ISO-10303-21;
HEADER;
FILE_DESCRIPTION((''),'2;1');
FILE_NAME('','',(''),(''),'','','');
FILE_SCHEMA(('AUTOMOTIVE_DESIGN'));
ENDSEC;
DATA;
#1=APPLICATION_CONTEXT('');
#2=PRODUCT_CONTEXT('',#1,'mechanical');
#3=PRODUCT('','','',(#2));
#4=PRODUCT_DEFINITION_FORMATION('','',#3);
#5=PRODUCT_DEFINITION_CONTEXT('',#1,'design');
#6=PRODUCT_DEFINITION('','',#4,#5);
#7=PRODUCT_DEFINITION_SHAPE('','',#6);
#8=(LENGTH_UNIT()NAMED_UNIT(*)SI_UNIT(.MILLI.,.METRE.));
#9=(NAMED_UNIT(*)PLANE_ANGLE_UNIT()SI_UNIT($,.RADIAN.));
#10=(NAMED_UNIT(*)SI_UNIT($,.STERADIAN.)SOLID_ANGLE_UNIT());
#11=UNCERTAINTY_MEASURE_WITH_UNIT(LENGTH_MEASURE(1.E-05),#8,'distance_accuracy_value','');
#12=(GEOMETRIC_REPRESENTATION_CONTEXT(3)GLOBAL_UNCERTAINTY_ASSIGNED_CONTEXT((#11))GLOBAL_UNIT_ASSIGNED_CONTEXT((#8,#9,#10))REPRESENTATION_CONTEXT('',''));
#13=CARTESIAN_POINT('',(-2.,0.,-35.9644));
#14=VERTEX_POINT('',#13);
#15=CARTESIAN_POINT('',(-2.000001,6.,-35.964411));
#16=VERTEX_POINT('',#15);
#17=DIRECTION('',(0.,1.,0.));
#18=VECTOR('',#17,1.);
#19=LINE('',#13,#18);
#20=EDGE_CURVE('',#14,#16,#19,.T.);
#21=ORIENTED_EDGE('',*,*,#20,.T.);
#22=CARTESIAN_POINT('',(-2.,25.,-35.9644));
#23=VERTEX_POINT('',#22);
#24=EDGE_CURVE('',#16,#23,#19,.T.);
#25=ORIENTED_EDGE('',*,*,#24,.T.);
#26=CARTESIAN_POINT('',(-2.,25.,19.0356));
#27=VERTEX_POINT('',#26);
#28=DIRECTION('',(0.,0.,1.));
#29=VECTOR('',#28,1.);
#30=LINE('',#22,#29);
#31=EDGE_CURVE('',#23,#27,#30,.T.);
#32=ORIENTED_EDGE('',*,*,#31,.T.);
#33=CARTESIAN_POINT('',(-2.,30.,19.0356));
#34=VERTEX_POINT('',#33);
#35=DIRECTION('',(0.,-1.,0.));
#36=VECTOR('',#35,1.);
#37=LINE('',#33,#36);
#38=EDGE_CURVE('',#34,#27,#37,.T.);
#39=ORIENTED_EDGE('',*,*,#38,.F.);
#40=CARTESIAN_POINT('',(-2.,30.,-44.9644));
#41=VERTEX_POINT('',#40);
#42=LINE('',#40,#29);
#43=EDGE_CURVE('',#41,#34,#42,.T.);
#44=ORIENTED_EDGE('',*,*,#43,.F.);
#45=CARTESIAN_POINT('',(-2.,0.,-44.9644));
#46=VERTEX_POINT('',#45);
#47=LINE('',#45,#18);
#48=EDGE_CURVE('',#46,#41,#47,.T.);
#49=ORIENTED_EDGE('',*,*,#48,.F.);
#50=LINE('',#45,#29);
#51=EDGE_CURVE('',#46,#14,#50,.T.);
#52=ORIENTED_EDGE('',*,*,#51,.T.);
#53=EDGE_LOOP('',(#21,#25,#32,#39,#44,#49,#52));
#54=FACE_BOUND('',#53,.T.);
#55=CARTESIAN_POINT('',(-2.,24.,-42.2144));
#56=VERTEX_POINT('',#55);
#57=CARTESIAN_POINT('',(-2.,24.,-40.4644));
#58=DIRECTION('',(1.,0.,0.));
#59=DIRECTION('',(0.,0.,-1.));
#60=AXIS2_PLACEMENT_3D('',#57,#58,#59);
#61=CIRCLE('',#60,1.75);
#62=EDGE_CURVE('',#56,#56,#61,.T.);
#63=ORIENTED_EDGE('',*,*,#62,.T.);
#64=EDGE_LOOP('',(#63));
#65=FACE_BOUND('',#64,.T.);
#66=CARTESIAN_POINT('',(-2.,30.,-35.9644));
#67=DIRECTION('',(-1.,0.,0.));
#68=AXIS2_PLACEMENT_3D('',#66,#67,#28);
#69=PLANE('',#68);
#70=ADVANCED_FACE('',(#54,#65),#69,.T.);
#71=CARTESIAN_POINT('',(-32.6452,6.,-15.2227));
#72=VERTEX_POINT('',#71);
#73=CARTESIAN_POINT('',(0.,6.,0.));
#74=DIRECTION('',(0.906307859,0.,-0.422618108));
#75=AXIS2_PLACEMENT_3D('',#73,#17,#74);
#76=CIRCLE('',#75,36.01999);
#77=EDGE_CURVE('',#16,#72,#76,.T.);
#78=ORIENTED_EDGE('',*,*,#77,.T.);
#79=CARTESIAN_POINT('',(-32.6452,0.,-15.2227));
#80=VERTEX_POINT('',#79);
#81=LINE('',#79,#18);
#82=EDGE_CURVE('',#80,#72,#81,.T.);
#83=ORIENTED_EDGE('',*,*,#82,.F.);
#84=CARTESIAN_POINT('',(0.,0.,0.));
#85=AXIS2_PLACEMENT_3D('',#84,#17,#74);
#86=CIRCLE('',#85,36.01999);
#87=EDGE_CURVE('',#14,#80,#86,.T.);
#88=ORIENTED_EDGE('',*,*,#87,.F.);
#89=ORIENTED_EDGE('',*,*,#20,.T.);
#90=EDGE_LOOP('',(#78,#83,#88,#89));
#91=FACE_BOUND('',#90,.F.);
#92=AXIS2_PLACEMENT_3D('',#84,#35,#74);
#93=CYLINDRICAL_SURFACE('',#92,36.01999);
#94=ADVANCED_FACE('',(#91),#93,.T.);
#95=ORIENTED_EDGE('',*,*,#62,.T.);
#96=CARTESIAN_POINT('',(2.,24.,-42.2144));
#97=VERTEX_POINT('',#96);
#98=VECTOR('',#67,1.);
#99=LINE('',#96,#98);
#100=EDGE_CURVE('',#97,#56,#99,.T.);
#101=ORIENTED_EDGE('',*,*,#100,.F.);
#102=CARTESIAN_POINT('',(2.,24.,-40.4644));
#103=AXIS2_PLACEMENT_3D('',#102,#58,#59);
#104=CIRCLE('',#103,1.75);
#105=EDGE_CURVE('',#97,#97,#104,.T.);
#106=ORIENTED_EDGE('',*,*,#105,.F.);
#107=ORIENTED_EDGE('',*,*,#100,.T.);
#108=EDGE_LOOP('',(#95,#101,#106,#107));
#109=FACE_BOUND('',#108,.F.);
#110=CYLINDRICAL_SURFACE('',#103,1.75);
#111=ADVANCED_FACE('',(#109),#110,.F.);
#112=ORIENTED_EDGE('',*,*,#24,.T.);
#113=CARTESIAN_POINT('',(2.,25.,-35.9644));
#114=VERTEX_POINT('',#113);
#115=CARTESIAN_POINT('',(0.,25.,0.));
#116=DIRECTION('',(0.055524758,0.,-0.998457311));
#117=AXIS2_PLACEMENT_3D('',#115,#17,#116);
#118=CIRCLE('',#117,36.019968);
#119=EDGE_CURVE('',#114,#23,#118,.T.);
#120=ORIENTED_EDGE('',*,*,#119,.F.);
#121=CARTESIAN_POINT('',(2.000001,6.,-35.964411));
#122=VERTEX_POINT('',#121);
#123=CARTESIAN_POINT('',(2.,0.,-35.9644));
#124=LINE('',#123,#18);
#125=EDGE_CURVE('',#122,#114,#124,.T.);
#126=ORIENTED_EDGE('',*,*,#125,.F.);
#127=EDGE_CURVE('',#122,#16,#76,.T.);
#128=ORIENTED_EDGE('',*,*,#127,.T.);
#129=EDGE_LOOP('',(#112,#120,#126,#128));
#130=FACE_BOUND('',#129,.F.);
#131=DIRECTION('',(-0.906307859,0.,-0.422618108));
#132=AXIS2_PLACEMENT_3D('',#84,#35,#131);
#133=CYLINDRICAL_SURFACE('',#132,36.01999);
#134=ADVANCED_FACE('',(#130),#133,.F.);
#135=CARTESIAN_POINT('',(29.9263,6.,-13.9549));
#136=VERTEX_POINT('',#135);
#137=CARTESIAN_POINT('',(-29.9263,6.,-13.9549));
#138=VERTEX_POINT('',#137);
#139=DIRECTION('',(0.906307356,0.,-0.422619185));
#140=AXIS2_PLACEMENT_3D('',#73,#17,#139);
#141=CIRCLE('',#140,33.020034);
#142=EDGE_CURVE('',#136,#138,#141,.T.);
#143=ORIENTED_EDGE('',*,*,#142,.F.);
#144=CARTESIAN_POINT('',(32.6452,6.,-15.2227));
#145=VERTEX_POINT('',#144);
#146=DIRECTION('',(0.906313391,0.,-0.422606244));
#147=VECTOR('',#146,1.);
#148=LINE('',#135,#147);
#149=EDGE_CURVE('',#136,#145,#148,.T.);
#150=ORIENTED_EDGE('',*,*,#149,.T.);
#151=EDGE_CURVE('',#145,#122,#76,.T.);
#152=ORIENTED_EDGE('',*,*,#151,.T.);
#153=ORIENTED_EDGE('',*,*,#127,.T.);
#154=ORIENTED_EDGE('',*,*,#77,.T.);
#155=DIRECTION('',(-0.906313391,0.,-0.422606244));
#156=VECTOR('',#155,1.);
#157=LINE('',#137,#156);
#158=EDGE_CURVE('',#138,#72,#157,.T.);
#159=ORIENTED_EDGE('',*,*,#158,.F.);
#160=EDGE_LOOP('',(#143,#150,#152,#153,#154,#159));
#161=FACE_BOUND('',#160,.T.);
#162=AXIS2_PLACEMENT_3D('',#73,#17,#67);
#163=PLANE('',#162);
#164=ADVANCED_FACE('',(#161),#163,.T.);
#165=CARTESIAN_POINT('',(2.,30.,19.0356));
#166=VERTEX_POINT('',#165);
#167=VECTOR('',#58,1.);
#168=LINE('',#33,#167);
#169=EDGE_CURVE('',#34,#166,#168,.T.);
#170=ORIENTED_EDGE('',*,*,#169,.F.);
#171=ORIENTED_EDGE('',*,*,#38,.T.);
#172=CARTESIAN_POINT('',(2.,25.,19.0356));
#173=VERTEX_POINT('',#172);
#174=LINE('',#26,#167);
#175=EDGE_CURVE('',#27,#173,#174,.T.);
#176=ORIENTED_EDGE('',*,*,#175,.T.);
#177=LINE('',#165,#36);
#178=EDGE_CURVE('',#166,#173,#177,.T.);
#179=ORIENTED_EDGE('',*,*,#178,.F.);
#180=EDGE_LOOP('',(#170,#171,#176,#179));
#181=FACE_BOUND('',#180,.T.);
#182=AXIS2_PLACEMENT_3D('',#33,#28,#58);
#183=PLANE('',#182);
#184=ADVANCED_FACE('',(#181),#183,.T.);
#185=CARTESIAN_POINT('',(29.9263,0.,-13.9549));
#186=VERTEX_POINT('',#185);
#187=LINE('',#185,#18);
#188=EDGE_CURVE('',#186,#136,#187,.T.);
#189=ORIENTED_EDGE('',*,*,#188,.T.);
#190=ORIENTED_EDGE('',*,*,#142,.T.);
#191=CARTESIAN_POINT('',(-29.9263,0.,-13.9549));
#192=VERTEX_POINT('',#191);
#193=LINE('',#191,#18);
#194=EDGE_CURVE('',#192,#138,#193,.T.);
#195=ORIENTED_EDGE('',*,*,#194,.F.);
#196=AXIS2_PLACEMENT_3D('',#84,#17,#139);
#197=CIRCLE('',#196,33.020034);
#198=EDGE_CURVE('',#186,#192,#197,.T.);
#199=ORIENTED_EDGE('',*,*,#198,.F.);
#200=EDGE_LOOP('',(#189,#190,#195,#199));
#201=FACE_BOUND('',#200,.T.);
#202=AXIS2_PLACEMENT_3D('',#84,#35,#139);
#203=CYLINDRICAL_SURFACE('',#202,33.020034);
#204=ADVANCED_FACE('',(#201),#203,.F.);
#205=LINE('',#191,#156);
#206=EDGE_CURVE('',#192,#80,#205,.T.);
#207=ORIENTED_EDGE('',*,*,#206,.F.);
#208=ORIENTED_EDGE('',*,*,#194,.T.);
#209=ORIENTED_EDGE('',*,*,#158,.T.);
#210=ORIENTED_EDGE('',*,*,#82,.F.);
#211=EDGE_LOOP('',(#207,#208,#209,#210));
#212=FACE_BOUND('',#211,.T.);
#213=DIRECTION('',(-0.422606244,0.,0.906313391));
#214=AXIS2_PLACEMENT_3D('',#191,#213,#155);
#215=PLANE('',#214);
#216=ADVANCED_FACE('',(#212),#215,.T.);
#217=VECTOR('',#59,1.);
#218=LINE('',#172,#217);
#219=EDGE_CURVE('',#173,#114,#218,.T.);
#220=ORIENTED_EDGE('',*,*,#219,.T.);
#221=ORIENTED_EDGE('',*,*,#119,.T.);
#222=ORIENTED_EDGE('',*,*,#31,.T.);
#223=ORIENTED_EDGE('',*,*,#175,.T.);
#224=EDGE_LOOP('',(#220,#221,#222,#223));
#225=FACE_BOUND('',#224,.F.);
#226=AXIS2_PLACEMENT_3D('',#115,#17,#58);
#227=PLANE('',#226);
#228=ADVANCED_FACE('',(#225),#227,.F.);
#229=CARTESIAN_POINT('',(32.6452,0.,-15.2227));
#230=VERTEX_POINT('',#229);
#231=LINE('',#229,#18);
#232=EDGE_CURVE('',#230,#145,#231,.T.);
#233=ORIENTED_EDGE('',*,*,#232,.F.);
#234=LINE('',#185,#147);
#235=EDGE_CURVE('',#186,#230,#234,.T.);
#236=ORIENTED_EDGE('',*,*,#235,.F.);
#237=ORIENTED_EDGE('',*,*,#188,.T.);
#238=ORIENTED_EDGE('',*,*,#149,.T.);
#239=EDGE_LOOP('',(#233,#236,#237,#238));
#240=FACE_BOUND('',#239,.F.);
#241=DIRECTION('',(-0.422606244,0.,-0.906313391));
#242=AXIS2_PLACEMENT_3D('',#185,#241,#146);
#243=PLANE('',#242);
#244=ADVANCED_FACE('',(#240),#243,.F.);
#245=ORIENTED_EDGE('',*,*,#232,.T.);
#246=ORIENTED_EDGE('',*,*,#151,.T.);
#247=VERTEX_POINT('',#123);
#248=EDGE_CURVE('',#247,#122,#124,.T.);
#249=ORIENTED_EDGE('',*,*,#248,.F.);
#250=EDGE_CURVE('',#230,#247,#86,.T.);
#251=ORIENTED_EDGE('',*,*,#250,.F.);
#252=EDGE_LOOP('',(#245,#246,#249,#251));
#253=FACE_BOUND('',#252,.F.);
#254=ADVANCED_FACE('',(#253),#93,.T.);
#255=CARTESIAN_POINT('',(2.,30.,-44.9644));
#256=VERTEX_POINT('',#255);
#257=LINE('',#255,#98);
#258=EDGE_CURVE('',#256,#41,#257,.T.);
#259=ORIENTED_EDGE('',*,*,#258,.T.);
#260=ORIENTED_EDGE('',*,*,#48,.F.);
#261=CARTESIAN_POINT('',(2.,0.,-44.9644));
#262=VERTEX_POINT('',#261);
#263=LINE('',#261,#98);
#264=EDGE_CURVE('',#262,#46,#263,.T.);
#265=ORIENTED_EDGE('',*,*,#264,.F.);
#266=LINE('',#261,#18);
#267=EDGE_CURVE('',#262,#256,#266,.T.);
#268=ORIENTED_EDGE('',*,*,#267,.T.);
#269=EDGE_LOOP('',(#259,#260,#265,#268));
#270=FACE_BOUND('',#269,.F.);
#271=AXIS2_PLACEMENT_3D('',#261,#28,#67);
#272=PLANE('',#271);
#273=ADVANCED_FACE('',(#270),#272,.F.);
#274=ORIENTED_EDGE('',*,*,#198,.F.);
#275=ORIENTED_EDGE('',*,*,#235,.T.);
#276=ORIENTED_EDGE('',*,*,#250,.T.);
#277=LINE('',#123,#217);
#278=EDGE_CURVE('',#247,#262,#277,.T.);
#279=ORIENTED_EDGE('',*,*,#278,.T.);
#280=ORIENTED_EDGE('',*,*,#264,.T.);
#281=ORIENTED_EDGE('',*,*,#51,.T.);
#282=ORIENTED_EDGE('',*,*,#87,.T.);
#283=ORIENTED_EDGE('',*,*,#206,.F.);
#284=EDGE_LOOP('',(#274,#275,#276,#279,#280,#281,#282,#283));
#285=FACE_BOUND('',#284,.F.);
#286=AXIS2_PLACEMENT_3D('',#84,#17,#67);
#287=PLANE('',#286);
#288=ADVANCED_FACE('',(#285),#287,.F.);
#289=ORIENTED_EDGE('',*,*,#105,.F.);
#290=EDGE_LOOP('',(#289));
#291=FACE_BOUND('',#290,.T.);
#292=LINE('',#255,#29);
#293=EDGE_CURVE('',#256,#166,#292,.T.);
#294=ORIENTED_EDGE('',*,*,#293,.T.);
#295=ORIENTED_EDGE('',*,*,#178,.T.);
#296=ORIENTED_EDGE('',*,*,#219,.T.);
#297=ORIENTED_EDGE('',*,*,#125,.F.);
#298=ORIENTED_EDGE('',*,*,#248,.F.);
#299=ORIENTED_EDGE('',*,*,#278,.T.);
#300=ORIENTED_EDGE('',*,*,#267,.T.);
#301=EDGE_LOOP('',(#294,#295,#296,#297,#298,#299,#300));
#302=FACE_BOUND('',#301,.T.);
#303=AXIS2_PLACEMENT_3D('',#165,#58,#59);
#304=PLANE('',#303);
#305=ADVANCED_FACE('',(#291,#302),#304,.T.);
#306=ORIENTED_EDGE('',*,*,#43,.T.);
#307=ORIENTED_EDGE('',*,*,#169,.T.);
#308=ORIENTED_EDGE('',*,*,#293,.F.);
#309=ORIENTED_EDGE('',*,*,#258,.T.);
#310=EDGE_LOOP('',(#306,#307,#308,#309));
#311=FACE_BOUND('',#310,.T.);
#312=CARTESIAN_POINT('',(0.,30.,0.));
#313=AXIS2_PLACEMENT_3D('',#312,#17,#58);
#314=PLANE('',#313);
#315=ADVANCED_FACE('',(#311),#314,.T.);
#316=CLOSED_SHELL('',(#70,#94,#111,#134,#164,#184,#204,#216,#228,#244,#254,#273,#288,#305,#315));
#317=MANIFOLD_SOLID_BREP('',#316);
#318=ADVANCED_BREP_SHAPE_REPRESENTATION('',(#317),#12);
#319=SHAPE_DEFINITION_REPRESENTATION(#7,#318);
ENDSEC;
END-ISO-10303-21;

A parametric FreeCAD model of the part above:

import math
import FreeCAD as App
import Part
import Sketcher
Q = App.Units.Quantity

doc = App.newDocument("Part")
body = doc.addObject("PartDesign::Body", "Body")

sketch1 = body.newObject("Sketcher::SketchObject", "Sketch")
sketch1.AttachmentSupport = (doc.getObject("XZ_Plane"), [""])
sketch1.MapMode = "FlatFace"
sketch1.addGeometry(Part.ArcOfCircle(Part.Circle(App.Vector(0, 0, 0), App.Vector(0, 0, 1), 33), math.radians(-155), math.radians(-25)), False)
sketch1.addGeometry(Part.LineSegment(App.Vector(29.9, -14, 0), App.Vector(32.6, -15.2, 0)), False)
sketch1.addGeometry(Part.ArcOfCircle(Part.Circle(App.Vector(0, 0, 0), App.Vector(0, 0, 1), 36), math.radians(-155), math.radians(-25)), False)
sketch1.addGeometry(Part.LineSegment(App.Vector(-32.6, -15.2, 0), App.Vector(-29.9, -14, 0)), False)
sketch1.addConstraint(Sketcher.Constraint("Coincident", 0, 2, 1, 1))
sketch1.addConstraint(Sketcher.Constraint("Coincident", 1, 2, 2, 2))
sketch1.addConstraint(Sketcher.Constraint("Coincident", 2, 1, 3, 1))
sketch1.addConstraint(Sketcher.Constraint("Coincident", 3, 2, 0, 1))
sketch1.addConstraint(Sketcher.Constraint("Coincident", 0, 3, -1, 1))
sketch1.addConstraint(Sketcher.Constraint("Coincident", 2, 3, -1, 1))
sketch1.addConstraint(Sketcher.Constraint("Horizontal", 1, 2, 2, 1))
sketch1.addConstraint(Sketcher.Constraint("Horizontal", 0, 2, 3, 2))
sketch1.addConstraint(Sketcher.Constraint("Radius", 0, Q("33.02 mm")))
sketch1.addConstraint(Sketcher.Constraint("Distance", 1, Q("3 mm")))
sketch1.addConstraint(Sketcher.Constraint("Angle", 1, Q("-24.9992 deg")))
sketch1.addConstraint(Sketcher.Constraint("DistanceY", 0, 2, -1, 1, Q("13.955 mm")))
pad1 = body.newObject("PartDesign::Pad", "Pad")
pad1.Profile = sketch1
pad1.Length = 6
pad1.Reversed = True

sketch2 = body.newObject("Sketcher::SketchObject", "Sketch001")
sketch2.AttachmentSupport = (doc.getObject("XZ_Plane"), [""])
sketch2.MapMode = "FlatFace"
sketch2.addGeometry(Part.ArcOfCircle(Part.Circle(App.Vector(0, 0, 0), App.Vector(0, 0, 1), 36), math.radians(-93.18), math.radians(-86.82)), False)
sketch2.addGeometry(Part.LineSegment(App.Vector(-2, -36, 0), App.Vector(-2, -45, 0)), False)
sketch2.addGeometry(Part.LineSegment(App.Vector(-2, -45, 0), App.Vector(2, -45, 0)), False)
sketch2.addGeometry(Part.LineSegment(App.Vector(2, -45, 0), App.Vector(2, -36, 0)), False)
sketch2.addConstraint(Sketcher.Constraint("Coincident", 0, 1, 1, 1))
sketch2.addConstraint(Sketcher.Constraint("Coincident", 1, 2, 2, 1))
sketch2.addConstraint(Sketcher.Constraint("Coincident", 2, 2, 3, 1))
sketch2.addConstraint(Sketcher.Constraint("Coincident", 3, 2, 0, 2))
sketch2.addConstraint(Sketcher.Constraint("Vertical", 1))
sketch2.addConstraint(Sketcher.Constraint("Horizontal", 2))
sketch2.addConstraint(Sketcher.Constraint("Vertical", 3))
sketch2.addConstraint(Sketcher.Constraint("Coincident", 0, 3, -1, 1))
sketch2.addConstraint(Sketcher.Constraint("Horizontal", 0, 1, 3, 2))
sketch2.addConstraint(Sketcher.Constraint("DistanceY", 1, 2, 1, 1, Q("9 mm")))
sketch2.addConstraint(Sketcher.Constraint("DistanceX", 0, 1, -1, 1, Q("2 mm")))
sketch2.addConstraint(Sketcher.Constraint("Radius", 0, Q("36.02 mm")))
pad2 = body.newObject("PartDesign::Pad", "Pad001")
pad2.Profile = sketch2
pad2.Length = 30
pad2.Reversed = True

sketch3 = body.newObject("Sketcher::SketchObject", "Sketch002")
sketch3.AttachmentSupport = (doc.getObject("YZ_Plane"), [""])
sketch3.MapMode = "FlatFace"
sketch3.AttachmentOffset = App.Placement(App.Vector(0, 0, 2), App.Rotation())
sketch3.addGeometry(Part.Circle(App.Vector(24, -40.5, 0), App.Vector(0, 0, 1), 1.8), False)
sketch3.addConstraint(Sketcher.Constraint("Diameter", 0, Q("3.5 mm")))
sketch3.addConstraint(Sketcher.Constraint("DistanceX", -1, 1, 0, 3, Q("24 mm")))
sketch3.addConstraint(Sketcher.Constraint("DistanceY", 0, 3, -1, 1, Q("40.4644 mm")))
pocket1 = body.newObject("PartDesign::Pocket", "Pocket")
pocket1.Profile = sketch3
pocket1.Length = 26

sketch4 = body.newObject("Sketcher::SketchObject", "Sketch003")
sketch4.AttachmentSupport = (doc.getObject("XZ_Plane"), [""])
sketch4.MapMode = "FlatFace"
sketch4.AttachmentOffset = App.Placement(App.Vector(0, 0, -30), App.Rotation())
sketch4.addGeometry(Part.ArcOfCircle(Part.Circle(App.Vector(0, 0, 0), App.Vector(0, 0, 1), 36), math.radians(-93.18), math.radians(-86.82)), False)
sketch4.addGeometry(Part.LineSegment(App.Vector(-2, -36, 0), App.Vector(-2, 19, 0)), False)
sketch4.addGeometry(Part.LineSegment(App.Vector(-2, 19, 0), App.Vector(2, 19, 0)), False)
sketch4.addGeometry(Part.LineSegment(App.Vector(2, 19, 0), App.Vector(2, -36, 0)), False)
sketch4.addConstraint(Sketcher.Constraint("Coincident", 0, 1, 1, 1))
sketch4.addConstraint(Sketcher.Constraint("Coincident", 1, 2, 2, 1))
sketch4.addConstraint(Sketcher.Constraint("Coincident", 2, 2, 3, 1))
sketch4.addConstraint(Sketcher.Constraint("Coincident", 3, 2, 0, 2))
sketch4.addConstraint(Sketcher.Constraint("Vertical", 1))
sketch4.addConstraint(Sketcher.Constraint("Horizontal", 2))
sketch4.addConstraint(Sketcher.Constraint("Vertical", 3))
sketch4.addConstraint(Sketcher.Constraint("Coincident", 0, 3, -1, 1))
sketch4.addConstraint(Sketcher.Constraint("Horizontal", 0, 1, 3, 2))
sketch4.addConstraint(Sketcher.Constraint("DistanceY", 1, 1, 1, 2, Q("55 mm")))
sketch4.addConstraint(Sketcher.Constraint("DistanceX", 2, 1, 2, 2, Q("4 mm")))
sketch4.addConstraint(Sketcher.Constraint("Radius", 0, Q("36.02 mm")))
pad3 = body.newObject("PartDesign::Pad", "Pad002")
pad3.Profile = sketch4
pad3.Length = 5

doc.recompute()
